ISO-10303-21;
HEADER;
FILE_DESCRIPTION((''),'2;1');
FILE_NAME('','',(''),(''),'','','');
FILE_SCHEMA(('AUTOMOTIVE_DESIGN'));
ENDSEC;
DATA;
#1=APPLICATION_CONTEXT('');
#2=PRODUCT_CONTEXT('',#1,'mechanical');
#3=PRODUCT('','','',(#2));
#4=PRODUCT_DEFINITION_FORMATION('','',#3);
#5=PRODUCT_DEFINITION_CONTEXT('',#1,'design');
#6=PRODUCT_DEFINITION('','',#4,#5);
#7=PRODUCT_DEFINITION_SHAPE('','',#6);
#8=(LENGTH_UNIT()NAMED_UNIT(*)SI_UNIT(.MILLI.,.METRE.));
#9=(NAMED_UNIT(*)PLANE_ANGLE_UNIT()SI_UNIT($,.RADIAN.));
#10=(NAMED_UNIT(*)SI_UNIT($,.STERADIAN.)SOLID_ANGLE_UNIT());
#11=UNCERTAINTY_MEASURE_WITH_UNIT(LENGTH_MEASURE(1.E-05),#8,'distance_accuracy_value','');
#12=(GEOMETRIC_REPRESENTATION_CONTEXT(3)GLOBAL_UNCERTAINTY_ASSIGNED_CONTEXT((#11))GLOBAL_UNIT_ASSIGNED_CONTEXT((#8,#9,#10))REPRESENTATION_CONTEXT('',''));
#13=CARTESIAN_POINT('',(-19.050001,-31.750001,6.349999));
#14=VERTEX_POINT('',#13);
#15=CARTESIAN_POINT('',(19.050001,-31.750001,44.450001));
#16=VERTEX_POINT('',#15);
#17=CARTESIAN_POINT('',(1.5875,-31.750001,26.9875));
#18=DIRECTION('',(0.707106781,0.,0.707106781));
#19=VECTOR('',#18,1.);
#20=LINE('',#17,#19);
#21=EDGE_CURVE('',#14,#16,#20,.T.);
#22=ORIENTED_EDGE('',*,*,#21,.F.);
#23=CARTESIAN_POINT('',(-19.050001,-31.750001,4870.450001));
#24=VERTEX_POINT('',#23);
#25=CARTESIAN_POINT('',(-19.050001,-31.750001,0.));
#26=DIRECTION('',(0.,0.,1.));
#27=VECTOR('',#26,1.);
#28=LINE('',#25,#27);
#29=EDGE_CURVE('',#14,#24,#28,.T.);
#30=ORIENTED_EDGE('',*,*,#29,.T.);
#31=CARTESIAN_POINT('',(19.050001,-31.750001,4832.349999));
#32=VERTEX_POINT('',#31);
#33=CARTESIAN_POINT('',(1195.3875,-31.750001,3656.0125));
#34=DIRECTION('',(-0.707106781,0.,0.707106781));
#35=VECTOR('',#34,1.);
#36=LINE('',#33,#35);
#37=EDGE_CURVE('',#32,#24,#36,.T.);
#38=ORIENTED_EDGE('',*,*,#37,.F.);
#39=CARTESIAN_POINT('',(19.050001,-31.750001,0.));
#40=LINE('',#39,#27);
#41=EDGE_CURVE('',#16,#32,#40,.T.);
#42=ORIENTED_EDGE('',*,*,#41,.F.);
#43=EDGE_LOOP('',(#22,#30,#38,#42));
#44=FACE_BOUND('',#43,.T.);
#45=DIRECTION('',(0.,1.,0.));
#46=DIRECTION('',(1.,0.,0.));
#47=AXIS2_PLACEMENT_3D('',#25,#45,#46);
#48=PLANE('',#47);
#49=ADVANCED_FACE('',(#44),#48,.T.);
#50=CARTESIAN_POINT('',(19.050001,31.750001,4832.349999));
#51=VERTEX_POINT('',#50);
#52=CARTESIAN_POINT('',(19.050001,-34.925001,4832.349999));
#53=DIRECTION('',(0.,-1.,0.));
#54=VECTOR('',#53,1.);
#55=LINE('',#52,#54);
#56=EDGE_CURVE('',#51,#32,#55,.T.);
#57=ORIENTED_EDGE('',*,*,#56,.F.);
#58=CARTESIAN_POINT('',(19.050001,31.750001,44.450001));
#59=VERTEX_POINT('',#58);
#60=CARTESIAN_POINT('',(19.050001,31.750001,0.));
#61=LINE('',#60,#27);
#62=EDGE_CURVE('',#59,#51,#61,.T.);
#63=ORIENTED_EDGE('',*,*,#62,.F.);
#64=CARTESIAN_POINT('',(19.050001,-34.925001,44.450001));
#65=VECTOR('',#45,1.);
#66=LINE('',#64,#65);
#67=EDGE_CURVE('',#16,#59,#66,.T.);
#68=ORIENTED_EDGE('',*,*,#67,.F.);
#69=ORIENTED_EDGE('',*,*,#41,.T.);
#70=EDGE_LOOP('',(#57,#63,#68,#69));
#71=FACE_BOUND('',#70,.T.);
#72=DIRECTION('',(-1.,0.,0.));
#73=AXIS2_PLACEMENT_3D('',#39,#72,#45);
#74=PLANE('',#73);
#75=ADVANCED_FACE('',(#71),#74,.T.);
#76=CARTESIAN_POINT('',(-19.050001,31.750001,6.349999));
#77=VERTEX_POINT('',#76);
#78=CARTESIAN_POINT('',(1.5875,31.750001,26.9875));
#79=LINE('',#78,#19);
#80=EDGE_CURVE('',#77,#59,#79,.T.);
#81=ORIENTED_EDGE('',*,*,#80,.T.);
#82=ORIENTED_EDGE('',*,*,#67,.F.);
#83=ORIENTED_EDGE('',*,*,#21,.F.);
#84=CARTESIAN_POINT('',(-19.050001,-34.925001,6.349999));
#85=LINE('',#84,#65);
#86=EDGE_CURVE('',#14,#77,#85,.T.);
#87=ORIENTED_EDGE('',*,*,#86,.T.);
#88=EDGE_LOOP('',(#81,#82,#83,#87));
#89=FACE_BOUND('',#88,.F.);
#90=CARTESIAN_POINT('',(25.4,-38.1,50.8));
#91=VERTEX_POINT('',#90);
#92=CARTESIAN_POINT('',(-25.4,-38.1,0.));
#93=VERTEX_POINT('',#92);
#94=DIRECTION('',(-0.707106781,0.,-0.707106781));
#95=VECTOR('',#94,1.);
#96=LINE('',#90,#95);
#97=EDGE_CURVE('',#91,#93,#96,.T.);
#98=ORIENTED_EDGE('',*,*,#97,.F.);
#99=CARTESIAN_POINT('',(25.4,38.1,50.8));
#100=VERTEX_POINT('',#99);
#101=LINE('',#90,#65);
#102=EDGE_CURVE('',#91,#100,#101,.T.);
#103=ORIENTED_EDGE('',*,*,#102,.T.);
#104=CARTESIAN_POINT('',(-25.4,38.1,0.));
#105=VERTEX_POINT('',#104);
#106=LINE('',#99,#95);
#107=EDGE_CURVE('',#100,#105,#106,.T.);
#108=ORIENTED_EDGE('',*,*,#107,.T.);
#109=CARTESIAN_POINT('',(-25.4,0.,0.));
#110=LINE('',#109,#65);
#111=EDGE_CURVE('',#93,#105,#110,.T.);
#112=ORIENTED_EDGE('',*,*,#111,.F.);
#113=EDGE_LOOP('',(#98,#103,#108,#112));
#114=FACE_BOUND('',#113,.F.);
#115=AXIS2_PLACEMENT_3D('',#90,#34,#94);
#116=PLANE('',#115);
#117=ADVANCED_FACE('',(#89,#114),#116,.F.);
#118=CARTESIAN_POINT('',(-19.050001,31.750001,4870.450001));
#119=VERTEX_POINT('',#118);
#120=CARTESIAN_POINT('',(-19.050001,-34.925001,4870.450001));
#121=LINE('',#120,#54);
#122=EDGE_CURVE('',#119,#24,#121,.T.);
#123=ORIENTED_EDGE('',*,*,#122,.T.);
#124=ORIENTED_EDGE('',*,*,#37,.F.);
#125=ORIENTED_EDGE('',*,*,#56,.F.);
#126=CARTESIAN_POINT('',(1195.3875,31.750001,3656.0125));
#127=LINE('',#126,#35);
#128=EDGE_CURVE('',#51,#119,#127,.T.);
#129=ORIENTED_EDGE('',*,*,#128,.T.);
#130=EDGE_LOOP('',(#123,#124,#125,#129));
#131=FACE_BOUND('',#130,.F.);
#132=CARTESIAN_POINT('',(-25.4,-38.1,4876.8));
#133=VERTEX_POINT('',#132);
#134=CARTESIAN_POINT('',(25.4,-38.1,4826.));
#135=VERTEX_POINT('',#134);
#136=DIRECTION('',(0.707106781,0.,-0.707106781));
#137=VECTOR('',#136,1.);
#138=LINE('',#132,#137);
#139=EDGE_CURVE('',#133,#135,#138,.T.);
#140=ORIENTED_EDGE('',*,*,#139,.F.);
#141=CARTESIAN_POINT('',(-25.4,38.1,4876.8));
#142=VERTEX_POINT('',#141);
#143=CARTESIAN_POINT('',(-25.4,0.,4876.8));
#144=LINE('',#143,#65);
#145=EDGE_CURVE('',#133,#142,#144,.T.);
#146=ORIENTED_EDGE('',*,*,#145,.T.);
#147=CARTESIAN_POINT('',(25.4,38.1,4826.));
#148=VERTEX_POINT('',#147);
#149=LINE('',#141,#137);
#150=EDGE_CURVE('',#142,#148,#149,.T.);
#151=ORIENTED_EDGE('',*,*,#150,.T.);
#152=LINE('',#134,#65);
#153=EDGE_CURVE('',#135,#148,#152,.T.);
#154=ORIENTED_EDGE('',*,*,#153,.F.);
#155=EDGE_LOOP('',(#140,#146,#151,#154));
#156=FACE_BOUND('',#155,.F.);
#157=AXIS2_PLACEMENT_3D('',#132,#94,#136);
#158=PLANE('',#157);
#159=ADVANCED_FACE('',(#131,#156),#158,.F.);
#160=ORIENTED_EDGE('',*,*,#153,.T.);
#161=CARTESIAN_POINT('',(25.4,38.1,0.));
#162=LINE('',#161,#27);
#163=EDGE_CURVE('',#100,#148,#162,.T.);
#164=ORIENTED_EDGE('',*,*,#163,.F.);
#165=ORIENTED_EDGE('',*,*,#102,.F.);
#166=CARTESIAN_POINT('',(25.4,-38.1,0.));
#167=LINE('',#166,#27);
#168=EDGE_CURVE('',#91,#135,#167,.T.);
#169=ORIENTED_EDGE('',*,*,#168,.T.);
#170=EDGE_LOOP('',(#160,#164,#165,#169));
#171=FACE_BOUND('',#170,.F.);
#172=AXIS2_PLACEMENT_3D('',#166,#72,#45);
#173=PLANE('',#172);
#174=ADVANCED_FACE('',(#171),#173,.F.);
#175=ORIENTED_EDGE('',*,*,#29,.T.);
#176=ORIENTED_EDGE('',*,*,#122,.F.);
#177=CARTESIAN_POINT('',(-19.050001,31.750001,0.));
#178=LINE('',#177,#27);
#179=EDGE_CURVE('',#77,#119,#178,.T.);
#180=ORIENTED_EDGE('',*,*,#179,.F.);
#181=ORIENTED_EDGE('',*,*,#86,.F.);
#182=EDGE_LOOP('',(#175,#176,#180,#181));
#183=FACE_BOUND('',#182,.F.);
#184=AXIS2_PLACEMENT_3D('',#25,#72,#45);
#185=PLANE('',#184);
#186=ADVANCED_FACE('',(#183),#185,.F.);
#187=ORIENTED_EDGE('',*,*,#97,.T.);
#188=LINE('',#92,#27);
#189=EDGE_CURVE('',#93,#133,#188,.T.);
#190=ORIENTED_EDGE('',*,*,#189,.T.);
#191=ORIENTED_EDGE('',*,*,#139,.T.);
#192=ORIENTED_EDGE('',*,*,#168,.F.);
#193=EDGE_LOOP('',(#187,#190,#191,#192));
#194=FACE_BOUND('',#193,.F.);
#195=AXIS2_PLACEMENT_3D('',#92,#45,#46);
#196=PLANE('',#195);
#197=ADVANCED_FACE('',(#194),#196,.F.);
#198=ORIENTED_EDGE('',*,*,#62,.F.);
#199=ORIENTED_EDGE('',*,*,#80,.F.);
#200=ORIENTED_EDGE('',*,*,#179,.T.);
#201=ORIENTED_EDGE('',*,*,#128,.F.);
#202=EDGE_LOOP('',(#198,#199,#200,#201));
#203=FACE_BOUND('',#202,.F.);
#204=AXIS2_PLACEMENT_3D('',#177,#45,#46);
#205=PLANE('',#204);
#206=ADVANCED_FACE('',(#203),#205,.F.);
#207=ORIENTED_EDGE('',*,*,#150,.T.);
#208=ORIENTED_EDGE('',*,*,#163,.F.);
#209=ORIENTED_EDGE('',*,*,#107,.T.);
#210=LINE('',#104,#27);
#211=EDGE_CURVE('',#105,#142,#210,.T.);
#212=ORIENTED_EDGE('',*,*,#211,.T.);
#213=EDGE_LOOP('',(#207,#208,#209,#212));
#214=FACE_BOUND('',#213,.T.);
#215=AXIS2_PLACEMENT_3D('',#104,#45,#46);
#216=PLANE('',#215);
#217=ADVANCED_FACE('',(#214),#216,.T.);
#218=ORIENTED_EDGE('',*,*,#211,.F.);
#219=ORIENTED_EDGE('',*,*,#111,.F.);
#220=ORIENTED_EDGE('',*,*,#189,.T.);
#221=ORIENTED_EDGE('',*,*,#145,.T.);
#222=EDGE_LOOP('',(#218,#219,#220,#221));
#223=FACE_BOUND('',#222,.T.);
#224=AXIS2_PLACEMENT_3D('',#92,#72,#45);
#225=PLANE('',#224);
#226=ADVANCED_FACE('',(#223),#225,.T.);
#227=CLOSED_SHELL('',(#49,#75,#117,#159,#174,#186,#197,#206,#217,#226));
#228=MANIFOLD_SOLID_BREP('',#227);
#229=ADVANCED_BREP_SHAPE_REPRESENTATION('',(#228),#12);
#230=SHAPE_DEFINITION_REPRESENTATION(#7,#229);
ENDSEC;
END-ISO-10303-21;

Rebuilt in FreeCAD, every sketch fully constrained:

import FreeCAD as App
import Part
import Sketcher

V = App.Vector
Q = App.Units.Quantity


def add_polygon(sketch, points):
    """Adds a closed chain of lines whose ends are joined by coincident constraints."""
    first, n = sketch.GeometryCount, len(points)
    for a, b in zip(points, points[1:] + points[:1]):
        sketch.addGeometry(Part.LineSegment(App.Vector(*a, 0), App.Vector(*b, 0)), False)
    for i in range(n):
        sketch.addConstraint(Sketcher.Constraint("Coincident", first + i, 2, first + (i + 1) % n, 1))

doc = App.newDocument("Part")
body = doc.addObject("PartDesign::Body", "Body")

sketch1 = body.newObject("Sketcher::SketchObject", "Sketch")
sketch1.AttachmentSupport = (doc.getObject("XY_Plane"), [""])
sketch1.MapMode = "FlatFace"
add_polygon(sketch1, [(-25, 38), (-25, -38), (25, -38), (25, 38)])
add_polygon(sketch1, [(19, -32), (-19, -32), (-19, 32), (19, 32)])
sketch1.addConstraint([
    Sketcher.Constraint("Vertical", 0),
    Sketcher.Constraint("Horizontal", 1),
    Sketcher.Constraint("Vertical", 2),
    Sketcher.Constraint("Horizontal", 3),
    Sketcher.Constraint("Horizontal", 4),
    Sketcher.Constraint("Vertical", 5),
    Sketcher.Constraint("Horizontal", 6),
    Sketcher.Constraint("Vertical", 7),
    Sketcher.Constraint("Symmetric", 0, 2, 2, 2, -1, 1),
    Sketcher.Constraint("Symmetric", 4, 2, 6, 2, -1, 1),
    Sketcher.Constraint("DistanceX", 1, 1, 1, 2, Q("2 in")),
    Sketcher.Constraint("DistanceY", 0, 2, 0, 1, Q("3 in")),
    Sketcher.Constraint("DistanceX", 4, 2, 4, 1, Q("1.5000001 in")),
    Sketcher.Constraint("DistanceY", 5, 1, 5, 2, Q("2.5000001 in")),
])
pad1 = body.newObject("PartDesign::Pad", "Pad")
pad1.Profile = sketch1
pad1.Length = Q("192 in")

sketch2 = body.newObject("Sketcher::SketchObject", "Sketch001")
sketch2.AttachmentSupport = (doc.getObject("XZ_Plane"), [""])
sketch2.MapMode = "FlatFace"
sketch2.AttachmentOffset = App.Placement(V(0, 0, 1.5 * 25.4), App.Rotation())
add_polygon(sketch2, [(25, 51), (-25, 0), (25, 0)])
add_polygon(sketch2, [(25, 4877), (-25, 4877), (25, 4826)])
sketch2.addConstraint([
    Sketcher.Constraint("Horizontal", 1),
    Sketcher.Constraint("Vertical", 2),
    Sketcher.Constraint("Horizontal", 3),
    Sketcher.Constraint("Vertical", 5),
    Sketcher.Constraint("Symmetric", 0, 2, 1, 2, -1, 1),
    Sketcher.Constraint("Perpendicular", 0, 4),
    Sketcher.Constraint("Vertical", 0, 2, 3, 2),
    Sketcher.Constraint("Vertical", 2, 2, 4, 2),
    Sketcher.Constraint("Equal", 3, 2),
    Sketcher.Constraint("DistanceX", 1, 1, 1, 2, Q("2 in")),
    Sketcher.Constraint("DistanceY", -1, 1, 3, 2, Q("192 in")),
])
pocket1 = body.newObject("PartDesign::Pocket", "Pocket")
pocket1.Profile = sketch2
pocket1.Length = Q("3 in")

doc.recompute()
